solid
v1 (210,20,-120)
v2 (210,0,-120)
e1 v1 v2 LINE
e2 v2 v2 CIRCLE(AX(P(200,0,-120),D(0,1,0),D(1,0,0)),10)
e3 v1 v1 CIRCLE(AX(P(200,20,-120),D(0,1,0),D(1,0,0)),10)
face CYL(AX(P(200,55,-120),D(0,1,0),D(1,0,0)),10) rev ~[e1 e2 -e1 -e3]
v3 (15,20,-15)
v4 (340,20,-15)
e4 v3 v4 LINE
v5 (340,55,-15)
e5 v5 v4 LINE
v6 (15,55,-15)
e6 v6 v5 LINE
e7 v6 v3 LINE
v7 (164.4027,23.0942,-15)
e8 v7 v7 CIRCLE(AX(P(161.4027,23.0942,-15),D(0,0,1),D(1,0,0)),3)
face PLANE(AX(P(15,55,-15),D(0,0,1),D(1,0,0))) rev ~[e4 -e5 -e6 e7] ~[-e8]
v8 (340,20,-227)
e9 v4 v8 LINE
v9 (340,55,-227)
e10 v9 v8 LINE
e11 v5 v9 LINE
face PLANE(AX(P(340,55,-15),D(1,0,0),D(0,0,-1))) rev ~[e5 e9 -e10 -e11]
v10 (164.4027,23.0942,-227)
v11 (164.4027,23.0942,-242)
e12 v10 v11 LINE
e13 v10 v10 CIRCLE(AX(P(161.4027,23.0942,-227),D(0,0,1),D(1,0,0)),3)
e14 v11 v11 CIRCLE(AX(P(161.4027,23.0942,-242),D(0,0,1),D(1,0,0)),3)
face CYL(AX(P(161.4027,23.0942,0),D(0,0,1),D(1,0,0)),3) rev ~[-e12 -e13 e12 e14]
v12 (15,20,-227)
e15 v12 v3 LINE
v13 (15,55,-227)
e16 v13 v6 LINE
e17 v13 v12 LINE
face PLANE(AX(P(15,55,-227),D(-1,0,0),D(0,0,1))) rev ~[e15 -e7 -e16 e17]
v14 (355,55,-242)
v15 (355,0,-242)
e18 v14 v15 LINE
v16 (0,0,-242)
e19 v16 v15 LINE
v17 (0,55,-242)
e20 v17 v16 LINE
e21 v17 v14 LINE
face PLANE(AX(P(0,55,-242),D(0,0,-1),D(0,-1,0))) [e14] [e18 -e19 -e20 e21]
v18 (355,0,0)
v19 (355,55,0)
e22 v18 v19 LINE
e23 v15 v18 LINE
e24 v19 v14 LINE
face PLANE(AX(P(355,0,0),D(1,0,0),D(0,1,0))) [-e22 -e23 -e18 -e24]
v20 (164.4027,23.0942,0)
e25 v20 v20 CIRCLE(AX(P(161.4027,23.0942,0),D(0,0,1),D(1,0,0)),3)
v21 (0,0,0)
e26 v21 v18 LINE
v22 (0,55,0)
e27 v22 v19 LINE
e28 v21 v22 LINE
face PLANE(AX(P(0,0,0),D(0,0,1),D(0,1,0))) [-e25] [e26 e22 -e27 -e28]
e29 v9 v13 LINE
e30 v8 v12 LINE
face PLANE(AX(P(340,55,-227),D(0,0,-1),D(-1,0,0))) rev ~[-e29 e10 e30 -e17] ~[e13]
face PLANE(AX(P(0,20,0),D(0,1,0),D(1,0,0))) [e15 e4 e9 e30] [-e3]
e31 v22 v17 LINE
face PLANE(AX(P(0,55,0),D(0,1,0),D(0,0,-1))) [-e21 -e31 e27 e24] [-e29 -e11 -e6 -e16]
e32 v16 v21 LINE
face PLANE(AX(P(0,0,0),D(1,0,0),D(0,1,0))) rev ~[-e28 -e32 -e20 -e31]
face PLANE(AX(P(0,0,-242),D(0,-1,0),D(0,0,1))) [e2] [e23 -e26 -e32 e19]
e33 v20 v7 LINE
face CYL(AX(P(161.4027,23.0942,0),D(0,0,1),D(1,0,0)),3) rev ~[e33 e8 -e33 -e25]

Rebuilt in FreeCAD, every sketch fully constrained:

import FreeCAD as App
import Part
import Sketcher

V = App.Vector


def add_polygon(sketch, points):
    """Adds a closed chain of lines whose ends are joined by coincident constraints."""
    first, n = sketch.GeometryCount, len(points)
    for a, b in zip(points, points[1:] + points[:1]):
        sketch.addGeometry(Part.LineSegment(App.Vector(*a, 0), App.Vector(*b, 0)), False)
    for i in range(n):
        sketch.addConstraint(Sketcher.Constraint("Coincident", first + i, 2, first + (i + 1) % n, 1))

doc = App.newDocument("Part")
body = doc.addObject("PartDesign::Body", "Body")

# Sketch on YZ plane
sketch1 = body.newObject("Sketcher::SketchObject", "Sketch")
sketch1.AttachmentSupport = (doc.getObject("YZ_Plane"), [""])
sketch1.MapMode = "FlatFace"
add_polygon(sketch1, [(55, 0), (0, 0), (0, -242), (55, -242)])  # lines 0-3
sketch1.addConstraint([
    Sketcher.Constraint("Horizontal", 0),
    Sketcher.Constraint("Vertical", 1),
    Sketcher.Constraint("Horizontal", 2),
    Sketcher.Constraint("Vertical", 3),
    Sketcher.Constraint("Coincident", 0, 2, -1, 1),
    Sketcher.Constraint("DistanceX", 0, 2, 0, 1, 55.0),
    Sketcher.Constraint("DistanceY", 1, 2, 1, 1, 242.0),
])
pad1 = body.newObject("PartDesign::Pad", "Pad")
pad1.Profile = sketch1
pad1.Length = 355

# Sketch on XZ plane
sketch2 = body.newObject("Sketcher::SketchObject", "Sketch001")
sketch2.AttachmentSupport = (doc.getObject("XZ_Plane"), [""])
sketch2.MapMode = "FlatFace"
sketch2.AttachmentOffset = App.Placement(V(0, 0, -55), App.Rotation())
sketch2.addGeometry(Part.Circle(V(200, -120, 0), V(0, 0, 1), 10), False)
sketch2.addConstraint([
    Sketcher.Constraint("Diameter", 0, 20.0),
    Sketcher.Constraint("DistanceX", -1, 1, 0, 3, 200.0),
    Sketcher.Constraint("DistanceY", 0, 3, -1, 1, 120.0),
])
pocket1 = body.newObject("PartDesign::Pocket", "Pocket")
pocket1.Profile = sketch2
pocket1.Type = "ThroughAll"
pocket1.Reversed = True

# Sketch on XZ plane
sketch3 = body.newObject("Sketcher::SketchObject", "Sketch002")
sketch3.AttachmentSupport = (doc.getObject("XZ_Plane"), [""])
sketch3.MapMode = "FlatFace"
sketch3.AttachmentOffset = App.Placement(V(0, 0, -55), App.Rotation())
add_polygon(sketch3, [(15, -227), (15, -15), (340, -15), (340, -227)])  # lines 0-3
sketch3.addConstraint([
    Sketcher.Constraint("Vertical", 0),
    Sketcher.Constraint("Horizontal", 1),
    Sketcher.Constraint("Vertical", 2),
    Sketcher.Constraint("Horizontal", 3),
    Sketcher.Constraint("DistanceX", -1, 1, 0, 2, 15.0),
    Sketcher.Constraint("DistanceY", 0, 2, -1, 1, 15.0),
    Sketcher.Constraint("DistanceX", 1, 1, 1, 2, 325.0),
    Sketcher.Constraint("DistanceY", 0, 1, 0, 2, 212.0),
])
pocket2 = body.newObject("PartDesign::Pocket", "Pocket001")
pocket2.Profile = sketch3
pocket2.Length = 35
pocket2.Reversed = True

# Sketch on XY plane
sketch4 = body.newObject("Sketcher::SketchObject", "Sketch003")
sketch4.AttachmentSupport = (doc.getObject("XY_Plane"), [""])
sketch4.MapMode = "FlatFace"
sketch4.addGeometry(Part.Circle(V(161.4027, 23.0942, 0), V(0, 0, 1), 3), False)
sketch4.addConstraint([
    Sketcher.Constraint("Diameter", 0, 6.0),
    Sketcher.Constraint("DistanceX", -1, 1, 0, 3, 161.4027),
    Sketcher.Constraint("DistanceY", -1, 1, 0, 3, 23.0942),
])
pocket3 = body.newObject("PartDesign::Pocket", "Pocket002")
pocket3.Profile = sketch4
pocket3.Type = "ThroughAll"

doc.recompute()
